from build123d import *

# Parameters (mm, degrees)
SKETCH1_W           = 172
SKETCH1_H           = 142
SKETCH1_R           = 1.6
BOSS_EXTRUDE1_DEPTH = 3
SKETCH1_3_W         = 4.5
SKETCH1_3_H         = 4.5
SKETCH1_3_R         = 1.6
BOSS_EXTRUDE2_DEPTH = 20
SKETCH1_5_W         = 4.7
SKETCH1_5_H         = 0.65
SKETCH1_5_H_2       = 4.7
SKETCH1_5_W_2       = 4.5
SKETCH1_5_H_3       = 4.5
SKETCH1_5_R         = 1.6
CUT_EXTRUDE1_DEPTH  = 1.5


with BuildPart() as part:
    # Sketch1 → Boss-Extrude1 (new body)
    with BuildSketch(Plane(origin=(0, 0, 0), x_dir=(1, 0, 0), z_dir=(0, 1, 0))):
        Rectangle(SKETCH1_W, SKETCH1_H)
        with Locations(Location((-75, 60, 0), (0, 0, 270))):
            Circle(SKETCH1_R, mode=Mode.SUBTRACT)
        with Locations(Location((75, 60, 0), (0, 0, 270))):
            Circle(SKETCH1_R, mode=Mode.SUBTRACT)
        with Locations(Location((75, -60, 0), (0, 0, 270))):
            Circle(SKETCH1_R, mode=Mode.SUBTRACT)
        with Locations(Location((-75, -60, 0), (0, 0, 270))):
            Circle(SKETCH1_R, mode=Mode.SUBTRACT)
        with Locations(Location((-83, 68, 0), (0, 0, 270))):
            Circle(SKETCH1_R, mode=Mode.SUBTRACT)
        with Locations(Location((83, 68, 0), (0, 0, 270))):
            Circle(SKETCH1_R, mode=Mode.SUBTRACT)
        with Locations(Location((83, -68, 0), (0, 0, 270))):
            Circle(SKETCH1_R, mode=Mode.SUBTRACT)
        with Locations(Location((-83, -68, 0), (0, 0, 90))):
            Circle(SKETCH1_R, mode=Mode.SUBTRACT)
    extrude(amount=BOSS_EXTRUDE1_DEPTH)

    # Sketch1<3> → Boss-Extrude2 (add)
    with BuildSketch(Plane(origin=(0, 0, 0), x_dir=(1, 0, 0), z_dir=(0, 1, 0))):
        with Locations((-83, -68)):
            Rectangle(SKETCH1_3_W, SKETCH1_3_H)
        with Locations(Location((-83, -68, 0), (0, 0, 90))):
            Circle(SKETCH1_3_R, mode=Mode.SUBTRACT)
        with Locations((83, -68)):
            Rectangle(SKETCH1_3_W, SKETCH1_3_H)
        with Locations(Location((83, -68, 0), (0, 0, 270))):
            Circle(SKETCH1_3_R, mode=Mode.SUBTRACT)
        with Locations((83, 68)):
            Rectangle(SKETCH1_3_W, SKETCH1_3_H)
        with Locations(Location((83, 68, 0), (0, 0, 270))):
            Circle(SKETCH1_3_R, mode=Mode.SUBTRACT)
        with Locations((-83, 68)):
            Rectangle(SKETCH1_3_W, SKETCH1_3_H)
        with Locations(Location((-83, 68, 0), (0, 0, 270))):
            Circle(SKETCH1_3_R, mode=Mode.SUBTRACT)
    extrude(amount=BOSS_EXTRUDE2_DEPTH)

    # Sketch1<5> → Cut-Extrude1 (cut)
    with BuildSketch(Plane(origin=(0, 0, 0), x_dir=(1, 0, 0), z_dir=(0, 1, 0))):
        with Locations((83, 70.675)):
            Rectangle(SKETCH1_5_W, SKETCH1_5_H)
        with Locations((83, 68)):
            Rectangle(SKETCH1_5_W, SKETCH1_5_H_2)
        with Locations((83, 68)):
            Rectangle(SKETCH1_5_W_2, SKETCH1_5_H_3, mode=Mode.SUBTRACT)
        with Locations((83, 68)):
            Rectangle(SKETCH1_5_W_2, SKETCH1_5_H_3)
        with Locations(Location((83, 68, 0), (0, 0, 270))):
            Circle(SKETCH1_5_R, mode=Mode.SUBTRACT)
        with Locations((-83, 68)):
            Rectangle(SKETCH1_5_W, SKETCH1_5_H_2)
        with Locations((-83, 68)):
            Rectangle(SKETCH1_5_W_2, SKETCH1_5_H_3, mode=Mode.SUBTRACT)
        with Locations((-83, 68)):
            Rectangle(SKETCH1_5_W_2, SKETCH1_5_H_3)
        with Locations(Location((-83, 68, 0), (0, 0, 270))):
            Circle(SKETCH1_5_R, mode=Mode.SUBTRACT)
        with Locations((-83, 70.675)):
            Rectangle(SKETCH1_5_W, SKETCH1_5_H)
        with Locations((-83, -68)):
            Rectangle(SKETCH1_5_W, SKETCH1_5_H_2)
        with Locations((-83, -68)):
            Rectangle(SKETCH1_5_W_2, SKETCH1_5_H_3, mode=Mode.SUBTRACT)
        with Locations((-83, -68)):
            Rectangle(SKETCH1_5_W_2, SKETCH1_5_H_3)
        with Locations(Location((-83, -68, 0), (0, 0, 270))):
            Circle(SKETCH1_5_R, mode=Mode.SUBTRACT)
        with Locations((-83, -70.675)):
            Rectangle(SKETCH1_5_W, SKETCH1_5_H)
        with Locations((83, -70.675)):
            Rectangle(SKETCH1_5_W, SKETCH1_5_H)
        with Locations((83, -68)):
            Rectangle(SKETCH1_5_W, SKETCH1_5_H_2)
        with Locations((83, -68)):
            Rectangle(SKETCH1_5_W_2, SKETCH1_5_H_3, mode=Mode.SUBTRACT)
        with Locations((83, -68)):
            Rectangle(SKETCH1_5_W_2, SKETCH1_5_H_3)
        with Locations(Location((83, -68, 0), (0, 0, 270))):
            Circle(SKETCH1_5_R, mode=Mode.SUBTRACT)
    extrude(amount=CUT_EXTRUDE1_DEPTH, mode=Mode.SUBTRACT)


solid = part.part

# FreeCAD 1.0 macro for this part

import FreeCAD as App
import Part
import Sketcher
from FreeCAD import Vector


def add_polygon(sketch, points):
    """Adds a closed chain of lines whose ends are joined by coincident constraints."""
    first, n = sketch.GeometryCount, len(points)
    for a, b in zip(points, points[1:] + points[:1]):
        sketch.addGeometry(Part.LineSegment(App.Vector(*a, 0), App.Vector(*b, 0)), False)
    for i in range(n):
        sketch.addConstraint(Sketcher.Constraint("Coincident", first + i, 2, first + (i + 1) % n, 1))

doc = App.newDocument("Part")
body = doc.addObject("PartDesign::Body", "Body")

# Sketch on XZ plane
sketch1 = doc.addObject("Sketcher::SketchObject", "Sketch")
body.addObject(sketch1)
sketch1.AttachmentSupport = (doc.XZ_Plane, [""])
sketch1.MapMode = "FlatFace"
add_polygon(sketch1, [(-86, -71), (-86, 71), (86, 71), (86, -71)])  # lines 0-3
sketch1.addGeometry(Part.Circle(Vector(-83, 68, 0), Vector(0, 0, 1), 1.6), False)  # 4
sketch1.addGeometry(Part.Circle(Vector(-75, 60, 0), Vector(0, 0, 1), 1.6), False)  # 5
sketch1.addGeometry(Part.Circle(Vector(83, 68, 0), Vector(0, 0, 1), 1.6), False)  # 6
sketch1.addGeometry(Part.Circle(Vector(75, 60, 0), Vector(0, 0, 1), 1.6), False)  # 7
sketch1.addGeometry(Part.Circle(Vector(-75, -60, 0), Vector(0, 0, 1), 1.6), False)  # 8
sketch1.addGeometry(Part.Circle(Vector(-83, -68, 0), Vector(0, 0, 1), 1.6), False)  # 9
sketch1.addGeometry(Part.Circle(Vector(75, -60, 0), Vector(0, 0, 1), 1.6), False)  # 10
sketch1.addGeometry(Part.Circle(Vector(83, -68, 0), Vector(0, 0, 1), 1.6), False)  # 11
sketch1.addConstraint([
    Sketcher.Constraint("Vertical", 0),
    Sketcher.Constraint("Horizontal", 1),
    Sketcher.Constraint("Vertical", 2),
    Sketcher.Constraint("Horizontal", 3),
    Sketcher.Constraint("Equal", 4, 5),
    Sketcher.Constraint("Equal", 5, 6),
    Sketcher.Constraint("Equal", 6, 7),
    Sketcher.Constraint("Equal", 7, 8),
    Sketcher.Constraint("Equal", 8, 9),
    Sketcher.Constraint("Equal", 9, 10),
    Sketcher.Constraint("Equal", 10, 11),
    Sketcher.Constraint("Symmetric", 7, 3, 8, 3, -1, 1),
    Sketcher.Constraint("Symmetric", 6, 3, 9, 3, -1, 1),
    Sketcher.Constraint("Symmetric", 5, 3, 10, 3, -1, 1),
    Sketcher.Constraint("Symmetric", 4, 3, 11, 3, -1, 1),
    Sketcher.Constraint("Symmetric", 0, 2, 2, 2, -1, 1),
    Sketcher.Constraint("Symmetric", 4, 3, 6, 3, -2),
    Sketcher.Constraint("Symmetric", 5, 3, 7, 3, -2),
    Sketcher.Constraint("Diameter", 4, 3.2),
    Sketcher.Constraint("DistanceX", 1, 1, 1, 2, 172.0),
    Sketcher.Constraint("DistanceY", 0, 1, 0, 2, 142.0),
    Sketcher.Constraint("DistanceX", 4, 3, -1, 1, 83.0),
    Sketcher.Constraint("DistanceY", -1, 1, 4, 3, 68.0),
    Sketcher.Constraint("DistanceX", 5, 3, -1, 1, 75.0),
    Sketcher.Constraint("DistanceY", -1, 1, 5, 3, 60.0),
])
pad1 = doc.addObject("PartDesign::Pad", "Pad")
body.addObject(pad1)
pad1.Profile = sketch1
pad1.Length = 3
pad1.Reversed = True

# Sketch on XZ plane
sketch2 = doc.addObject("Sketcher::SketchObject", "Sketch001")
body.addObject(sketch2)
sketch2.AttachmentSupport = (doc.XZ_Plane, [""])
sketch2.MapMode = "FlatFace"
add_polygon(sketch2, [(-85.25, 65.75), (-85.25, 70.25), (-80.75, 70.25), (-80.75, 65.75)])  # lines 0-3
sketch2.addGeometry(Part.Circle(Vector(-83, 68, 0), Vector(0, 0, 1), 1.6), False)  # 4
add_polygon(sketch2, [(80.75, 65.75), (80.75, 70.25), (85.25, 70.25), (85.25, 65.75)])  # lines 5-8
sketch2.addGeometry(Part.Circle(Vector(83, 68, 0), Vector(0, 0, 1), 1.6), False)  # 9
add_polygon(sketch2, [(80.75, -70.25), (80.75, -65.75), (85.25, -65.75), (85.25, -70.25)])  # lines 10-13
sketch2.addGeometry(Part.Circle(Vector(83, -68, 0), Vector(0, 0, 1), 1.6), False)  # 14
add_polygon(sketch2, [(-85.25, -70.25), (-85.25, -65.75), (-80.75, -65.75), (-80.75, -70.25)])  # lines 15-18
sketch2.addGeometry(Part.Circle(Vector(-83, -68, 0), Vector(0, 0, 1), 1.6), False)  # 19
sketch2.addConstraint([
    Sketcher.Constraint("Vertical", 0),
    Sketcher.Constraint("Horizontal", 1),
    Sketcher.Constraint("Vertical", 2),
    Sketcher.Constraint("Horizontal", 3),
    Sketcher.Constraint("Vertical", 5),
    Sketcher.Constraint("Horizontal", 6),
    Sketcher.Constraint("Vertical", 7),
    Sketcher.Constraint("Horizontal", 8),
    Sketcher.Constraint("Vertical", 10),
    Sketcher.Constraint("Horizontal", 11),
    Sketcher.Constraint("Vertical", 12),
    Sketcher.Constraint("Horizontal", 13),
    Sketcher.Constraint("Vertical", 15),
    Sketcher.Constraint("Horizontal", 16),
    Sketcher.Constraint("Vertical", 17),
    Sketcher.Constraint("Horizontal", 18),
    Sketcher.Constraint("Equal", 4, 9),
    Sketcher.Constraint("Equal", 9, 14),
    Sketcher.Constraint("Equal", 14, 19),
    Sketcher.Constraint("Symmetric", 4, 3, 14, 3, -1, 1),
    Sketcher.Constraint("Symmetric", 9, 3, 19, 3, -1, 1),
    Sketcher.Constraint("Symmetric", 2, 2, 10, 2, -1, 1),
    Sketcher.Constraint("Symmetric", 0, 2, 12, 2, -1, 1),
    Sketcher.Constraint("Symmetric", 7, 2, 15, 2, -1, 1),
    Sketcher.Constraint("Symmetric", 5, 2, 17, 2, -1, 1),
    Sketcher.Constraint("Symmetric", 4, 3, 9, 3, -2),
    Sketcher.Constraint("Symmetric", 1, 2, 5, 2, -2),
    Sketcher.Constraint("Symmetric", 3, 2, 7, 2, -2),
    Sketcher.Constraint("Equal", 18, 0),
    Sketcher.Constraint("Diameter", 4, 3.2),
    Sketcher.Constraint("DistanceX", 1, 1, 1, 2, 4.5),
    Sketcher.Constraint("DistanceX", 4, 3, -1, 1, 83.0),
    Sketcher.Constraint("DistanceY", -1, 1, 4, 3, 68.0),
    Sketcher.Constraint("DistanceX", 1, 2, 6, 2, 166.0),
    Sketcher.Constraint("DistanceY", 10, 2, 5, 2, 136.0),
])
pad2 = doc.addObject("PartDesign::Pad", "Pad001")
body.addObject(pad2)
pad2.Profile = sketch2
pad2.Length = 20
pad2.Reversed = True

# Sketch on XZ plane
sketch3 = doc.addObject("Sketcher::SketchObject", "Sketch002")
body.addObject(sketch3)
sketch3.AttachmentSupport = (doc.XZ_Plane, [""])
sketch3.MapMode = "FlatFace"
add_polygon(sketch3, [(80.65, -71), (80.65, -65.65), (85.35, -65.65), (85.35, -71)])  # lines 0-3
sketch3.addGeometry(Part.Circle(Vector(83, -68, 0), Vector(0, 0, 1), 1.6), False)  # 4
add_polygon(sketch3, [(-85.35, -65.65), (-80.65, -65.65), (-80.65, -71), (-85.35, -71)])  # lines 5-8
sketch3.addGeometry(Part.Circle(Vector(-83, -68, 0), Vector(0, 0, 1), 1.6), False)  # 9
add_polygon(sketch3, [(-85.35, 65.65), (-85.35, 71), (-80.65, 71), (-80.65, 65.65)])  # lines 10-13
sketch3.addGeometry(Part.Circle(Vector(-83, 68, 0), Vector(0, 0, 1), 1.6), False)  # 14
add_polygon(sketch3, [(80.65, 71), (85.35, 71), (85.35, 65.65), (80.65, 65.65)])  # lines 15-18
sketch3.addGeometry(Part.Circle(Vector(83, 68, 0), Vector(0, 0, 1), 1.6), False)  # 19
sketch3.addConstraint([
    Sketcher.Constraint("Vertical", 0),
    Sketcher.Constraint("Horizontal", 1),
    Sketcher.Constraint("Vertical", 2),
    Sketcher.Constraint("Horizontal", 3),
    Sketcher.Constraint("Horizontal", 5),
    Sketcher.Constraint("Vertical", 6),
    Sketcher.Constraint("Horizontal", 7),
    Sketcher.Constraint("Vertical", 8),
    Sketcher.Constraint("Vertical", 10),
    Sketcher.Constraint("Horizontal", 11),
    Sketcher.Constraint("Vertical", 12),
    Sketcher.Constraint("Horizontal", 13),
    Sketcher.Constraint("Horizontal", 15),
    Sketcher.Constraint("Vertical", 16),
    Sketcher.Constraint("Horizontal", 17),
    Sketcher.Constraint("Vertical", 18),
    Sketcher.Constraint("Equal", 4, 9),
    Sketcher.Constraint("Equal", 9, 14),
    Sketcher.Constraint("Equal", 14, 19),
    Sketcher.Constraint("Symmetric", 4, 3, 14, 3, -1, 1),
    Sketcher.Constraint("Symmetric", 9, 3, 19, 3, -1, 1),
    Sketcher.Constraint("Symmetric", 2, 2, 10, 2, -1, 1),
    Sketcher.Constraint("Symmetric", 0, 2, 12, 2, -1, 1),
    Sketcher.Constraint("Symmetric", 7, 2, 15, 2, -1, 1),
    Sketcher.Constraint("Symmetric", 5, 2, 17, 2, -1, 1),
    Sketcher.Constraint("Symmetric", 4, 3, 9, 3, -2),
    Sketcher.Constraint("Symmetric", 0, 2, 5, 2, -2),
    Sketcher.Constraint("Symmetric", 2, 2, 7, 2, -2),
    Sketcher.Constraint("Diameter", 4, 3.2),
    Sketcher.Constraint("DistanceX", 1, 1, 1, 2, 4.7),
    Sketcher.Constraint("DistanceX", -1, 1, 4, 3, 83.0),
    Sketcher.Constraint("DistanceY", 4, 3, -1, 1, 68.0),
    Sketcher.Constraint("DistanceY", 2, 2, -1, 1, 71.0),
    Sketcher.Constraint("DistanceX", 7, 2, 3, 2, 166.0),
    Sketcher.Constraint("DistanceY", 0, 1, 0, 2, 5.35),
])
pocket1 = doc.addObject("PartDesign::Pocket", "Pocket")
body.addObject(pocket1)
pocket1.Profile = sketch3
pocket1.Length = 1.5

doc.recompute()
